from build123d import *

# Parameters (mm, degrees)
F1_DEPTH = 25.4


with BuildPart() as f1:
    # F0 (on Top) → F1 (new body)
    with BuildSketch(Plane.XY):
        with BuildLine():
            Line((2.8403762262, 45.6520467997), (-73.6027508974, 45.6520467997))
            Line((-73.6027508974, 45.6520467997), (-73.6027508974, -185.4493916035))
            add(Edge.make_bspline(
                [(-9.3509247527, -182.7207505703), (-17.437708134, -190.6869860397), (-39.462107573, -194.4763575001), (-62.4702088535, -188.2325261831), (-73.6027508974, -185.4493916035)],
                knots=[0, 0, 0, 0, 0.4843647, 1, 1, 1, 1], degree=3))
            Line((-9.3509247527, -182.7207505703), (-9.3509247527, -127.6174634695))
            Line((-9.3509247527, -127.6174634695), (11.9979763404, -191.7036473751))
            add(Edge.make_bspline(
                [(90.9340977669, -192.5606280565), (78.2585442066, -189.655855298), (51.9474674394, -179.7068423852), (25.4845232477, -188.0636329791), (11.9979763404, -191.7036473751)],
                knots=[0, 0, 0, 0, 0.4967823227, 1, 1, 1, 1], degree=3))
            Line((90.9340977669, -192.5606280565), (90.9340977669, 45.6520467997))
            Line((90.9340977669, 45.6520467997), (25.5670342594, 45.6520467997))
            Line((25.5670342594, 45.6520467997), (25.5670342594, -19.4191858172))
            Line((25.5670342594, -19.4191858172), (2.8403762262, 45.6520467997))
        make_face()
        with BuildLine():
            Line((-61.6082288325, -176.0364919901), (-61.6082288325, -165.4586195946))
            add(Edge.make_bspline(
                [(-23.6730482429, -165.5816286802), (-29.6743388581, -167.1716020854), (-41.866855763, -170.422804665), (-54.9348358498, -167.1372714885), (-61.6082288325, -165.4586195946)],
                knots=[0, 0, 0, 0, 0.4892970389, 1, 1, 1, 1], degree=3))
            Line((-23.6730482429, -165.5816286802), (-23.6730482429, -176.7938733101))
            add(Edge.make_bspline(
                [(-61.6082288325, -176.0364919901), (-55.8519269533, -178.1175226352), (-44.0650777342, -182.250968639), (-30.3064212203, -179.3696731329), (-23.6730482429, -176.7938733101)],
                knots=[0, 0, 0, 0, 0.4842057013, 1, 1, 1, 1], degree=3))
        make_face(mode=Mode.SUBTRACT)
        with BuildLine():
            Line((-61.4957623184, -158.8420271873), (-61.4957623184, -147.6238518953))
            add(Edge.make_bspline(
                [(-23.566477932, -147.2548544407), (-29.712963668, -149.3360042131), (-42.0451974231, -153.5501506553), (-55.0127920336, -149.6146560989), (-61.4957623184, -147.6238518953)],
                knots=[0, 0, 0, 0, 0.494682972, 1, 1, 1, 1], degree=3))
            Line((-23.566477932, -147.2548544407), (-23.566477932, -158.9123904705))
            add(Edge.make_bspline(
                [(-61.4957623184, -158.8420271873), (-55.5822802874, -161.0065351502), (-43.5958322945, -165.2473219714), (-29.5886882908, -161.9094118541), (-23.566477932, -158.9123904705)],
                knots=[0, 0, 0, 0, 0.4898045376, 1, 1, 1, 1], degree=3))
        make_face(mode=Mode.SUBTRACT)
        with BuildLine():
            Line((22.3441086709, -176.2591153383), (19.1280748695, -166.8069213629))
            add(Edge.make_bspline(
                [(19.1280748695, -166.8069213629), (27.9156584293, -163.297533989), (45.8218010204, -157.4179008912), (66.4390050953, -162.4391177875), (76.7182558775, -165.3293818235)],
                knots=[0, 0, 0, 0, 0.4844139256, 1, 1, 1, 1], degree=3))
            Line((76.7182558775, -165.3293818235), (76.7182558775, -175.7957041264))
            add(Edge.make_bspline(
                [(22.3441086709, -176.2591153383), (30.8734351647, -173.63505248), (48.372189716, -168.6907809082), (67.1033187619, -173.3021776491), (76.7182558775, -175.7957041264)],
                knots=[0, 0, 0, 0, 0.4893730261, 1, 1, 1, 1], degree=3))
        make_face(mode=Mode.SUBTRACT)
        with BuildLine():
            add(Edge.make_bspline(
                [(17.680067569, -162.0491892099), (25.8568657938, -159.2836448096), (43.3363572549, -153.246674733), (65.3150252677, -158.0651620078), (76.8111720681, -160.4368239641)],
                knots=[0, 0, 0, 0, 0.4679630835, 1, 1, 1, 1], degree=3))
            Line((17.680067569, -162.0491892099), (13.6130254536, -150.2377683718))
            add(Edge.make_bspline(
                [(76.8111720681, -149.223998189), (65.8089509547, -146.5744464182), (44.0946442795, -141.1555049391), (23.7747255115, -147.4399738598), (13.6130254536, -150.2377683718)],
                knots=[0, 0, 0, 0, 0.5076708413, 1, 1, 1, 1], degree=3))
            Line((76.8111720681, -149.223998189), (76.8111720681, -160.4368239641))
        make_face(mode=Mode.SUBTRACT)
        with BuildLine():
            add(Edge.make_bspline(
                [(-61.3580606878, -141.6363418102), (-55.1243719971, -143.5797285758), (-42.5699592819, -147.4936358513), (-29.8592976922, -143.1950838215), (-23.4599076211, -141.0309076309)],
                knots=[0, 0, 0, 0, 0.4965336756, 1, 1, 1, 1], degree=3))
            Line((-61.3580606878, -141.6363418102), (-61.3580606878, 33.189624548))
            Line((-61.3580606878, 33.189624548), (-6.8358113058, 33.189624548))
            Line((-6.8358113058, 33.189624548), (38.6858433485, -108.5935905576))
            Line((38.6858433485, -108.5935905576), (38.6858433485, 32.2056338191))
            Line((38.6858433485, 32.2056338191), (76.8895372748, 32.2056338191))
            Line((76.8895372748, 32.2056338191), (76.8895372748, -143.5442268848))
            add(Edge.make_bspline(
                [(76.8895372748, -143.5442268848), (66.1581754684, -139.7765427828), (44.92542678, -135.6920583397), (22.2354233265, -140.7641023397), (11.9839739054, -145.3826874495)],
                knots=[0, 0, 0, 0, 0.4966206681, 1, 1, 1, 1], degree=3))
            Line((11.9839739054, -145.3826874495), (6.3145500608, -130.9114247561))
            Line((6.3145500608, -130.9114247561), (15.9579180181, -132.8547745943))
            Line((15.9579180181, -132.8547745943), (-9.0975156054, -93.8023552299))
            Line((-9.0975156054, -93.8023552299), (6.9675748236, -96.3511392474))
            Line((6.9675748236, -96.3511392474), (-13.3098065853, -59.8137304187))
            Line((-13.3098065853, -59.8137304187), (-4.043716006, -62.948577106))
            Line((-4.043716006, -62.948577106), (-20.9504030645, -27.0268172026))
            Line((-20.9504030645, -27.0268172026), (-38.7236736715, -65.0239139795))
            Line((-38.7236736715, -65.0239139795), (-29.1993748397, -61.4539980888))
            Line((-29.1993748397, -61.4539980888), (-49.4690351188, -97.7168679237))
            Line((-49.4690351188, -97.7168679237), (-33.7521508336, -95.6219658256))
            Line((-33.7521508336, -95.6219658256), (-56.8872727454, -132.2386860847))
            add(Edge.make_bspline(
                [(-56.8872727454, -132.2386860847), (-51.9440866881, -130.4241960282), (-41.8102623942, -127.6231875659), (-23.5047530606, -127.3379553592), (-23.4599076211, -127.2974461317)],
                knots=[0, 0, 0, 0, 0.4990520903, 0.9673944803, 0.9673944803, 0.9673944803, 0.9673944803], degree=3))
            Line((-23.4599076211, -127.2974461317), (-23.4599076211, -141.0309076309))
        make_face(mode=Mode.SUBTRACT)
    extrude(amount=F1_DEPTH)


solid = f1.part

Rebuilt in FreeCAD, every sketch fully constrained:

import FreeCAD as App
import Part
import Sketcher
Q = App.Units.Quantity

doc = App.newDocument("Part")
body = doc.addObject("PartDesign::Body", "Body")

# Sketch on XY plane
sketch1 = body.newObject("Sketcher::SketchObject", "Sketch")
sketch1.AttachmentSupport = (doc.getObject("XY_Plane"), [""])
sketch1.MapMode = "FlatFace"
sketch1.addGeometry([
    Part.LineSegment(App.Vector(2.840376, 45.652047, 0), App.Vector(-73.602751, 45.652047, 0)),  # 0
    Part.LineSegment(App.Vector(-73.602751, 45.652047, 0), App.Vector(-73.602751, -185.449392, 0)),  # 1
    Part.BSplineCurve([App.Vector(-9.350925, -182.720751, 0), App.Vector(-17.437708, -190.686986, 0), App.Vector(-39.462108, -194.476358, 0), App.Vector(-62.470209, -188.232526, 0), App.Vector(-73.602751, -185.449392, 0)], [4, 1, 4], [0, 0.4843647, 1], False, 3, [1, 1, 1, 1, 1], False),  # 2
    Part.LineSegment(App.Vector(-9.350925, -182.720751, 0), App.Vector(-9.350925, -127.617463, 0)),  # 3
    Part.LineSegment(App.Vector(-9.350925, -127.617463, 0), App.Vector(11.997976, -191.703647, 0)),  # 4
    Part.BSplineCurve([App.Vector(90.934098, -192.560628, 0), App.Vector(78.258544, -189.655855, 0), App.Vector(51.947467, -179.706842, 0), App.Vector(25.484523, -188.063633, 0), App.Vector(11.997976, -191.703647, 0)], [4, 1, 4], [0, 0.496782323, 1], False, 3, [1, 1, 1, 1, 1], False),  # 5
    Part.LineSegment(App.Vector(90.934098, -192.560628, 0), App.Vector(90.934098, 45.652047, 0)),  # 6
    Part.LineSegment(App.Vector(90.934098, 45.652047, 0), App.Vector(25.567034, 45.652047, 0)),  # 7
    Part.LineSegment(App.Vector(25.567034, 45.652047, 0), App.Vector(25.567034, -19.419186, 0)),  # 8
    Part.LineSegment(App.Vector(25.567034, -19.419186, 0), App.Vector(2.840376, 45.652047, 0)),  # 9
    Part.BSplineCurve([App.Vector(-61.608229, -176.036492, 0), App.Vector(-55.851927, -178.117523, 0), App.Vector(-44.065078, -182.250969, 0), App.Vector(-30.306421, -179.369673, 0), App.Vector(-23.673048, -176.793873, 0)], [4, 1, 4], [0, 0.484205701, 1], False, 3, [1, 1, 1, 1, 1], False),  # 10
    Part.LineSegment(App.Vector(-61.608229, -176.036492, 0), App.Vector(-61.608229, -165.45862, 0)),  # 11
    Part.BSplineCurve([App.Vector(-23.673048, -165.581629, 0), App.Vector(-29.674339, -167.171602, 0), App.Vector(-41.866856, -170.422805, 0), App.Vector(-54.934836, -167.137271, 0), App.Vector(-61.608229, -165.45862, 0)], [4, 1, 4], [0, 0.489297039, 1], False, 3, [1, 1, 1, 1, 1], False),  # 12
    Part.LineSegment(App.Vector(-23.673048, -165.581629, 0), App.Vector(-23.673048, -176.793873, 0)),  # 13
    Part.BSplineCurve([App.Vector(-61.495762, -158.842027, 0), App.Vector(-55.58228, -161.006535, 0), App.Vector(-43.595832, -165.247322, 0), App.Vector(-29.588688, -161.909412, 0), App.Vector(-23.566478, -158.91239, 0)], [4, 1, 4], [0, 0.489804538, 1], False, 3, [1, 1, 1, 1, 1], False),  # 14
    Part.LineSegment(App.Vector(-61.495762, -158.842027, 0), App.Vector(-61.495762, -147.623852, 0)),  # 15
    Part.BSplineCurve([App.Vector(-23.566478, -147.254854, 0), App.Vector(-29.712964, -149.336004, 0), App.Vector(-42.045197, -153.550151, 0), App.Vector(-55.012792, -149.614656, 0), App.Vector(-61.495762, -147.623852, 0)], [4, 1, 4], [0, 0.494682972, 1], False, 3, [1, 1, 1, 1, 1], False),  # 16
    Part.LineSegment(App.Vector(-23.566478, -147.254854, 0), App.Vector(-23.566478, -158.91239, 0)),  # 17
    Part.BSplineCurve([App.Vector(22.344109, -176.259115, 0), App.Vector(30.873435, -173.635052, 0), App.Vector(48.37219, -168.690781, 0), App.Vector(67.103319, -173.302178, 0), App.Vector(76.718256, -175.795704, 0)], [4, 1, 4], [0, 0.489373026, 1], False, 3, [1, 1, 1, 1, 1], False),  # 18
    Part.LineSegment(App.Vector(22.344109, -176.259115, 0), App.Vector(19.128075, -166.806921, 0)),  # 19
    Part.BSplineCurve([App.Vector(19.128075, -166.806921, 0), App.Vector(27.915658, -163.297534, 0), App.Vector(45.821801, -157.417901, 0), App.Vector(66.439005, -162.439118, 0), App.Vector(76.718256, -165.329382, 0)], [4, 1, 4], [0, 0.484413926, 1], False, 3, [1, 1, 1, 1, 1], False),  # 20
    Part.LineSegment(App.Vector(76.718256, -165.329382, 0), App.Vector(76.718256, -175.795704, 0)),  # 21
    Part.BSplineCurve([App.Vector(17.680068, -162.049189, 0), App.Vector(25.856866, -159.283645, 0), App.Vector(43.336357, -153.246675, 0), App.Vector(65.315025, -158.065162, 0), App.Vector(76.811172, -160.436824, 0)], [4, 1, 4], [0, 0.467963083, 1], False, 3, [1, 1, 1, 1, 1], False),  # 22
    Part.LineSegment(App.Vector(17.680068, -162.049189, 0), App.Vector(13.613025, -150.237768, 0)),  # 23
    Part.BSplineCurve([App.Vector(76.811172, -149.223998, 0), App.Vector(65.808951, -146.574446, 0), App.Vector(44.094644, -141.155505, 0), App.Vector(23.774726, -147.439974, 0), App.Vector(13.613025, -150.237768, 0)], [4, 1, 4], [0, 0.507670841, 1], False, 3, [1, 1, 1, 1, 1], False),  # 24
    Part.LineSegment(App.Vector(76.811172, -149.223998, 0), App.Vector(76.811172, -160.436824, 0)),  # 25
    Part.BSplineCurve([App.Vector(-61.358061, -141.636342, 0), App.Vector(-55.124372, -143.579729, 0), App.Vector(-42.569959, -147.493636, 0), App.Vector(-29.859298, -143.195084, 0), App.Vector(-23.459908, -141.030908, 0)], [4, 1, 4], [0, 0.496533676, 1], False, 3, [1, 1, 1, 1, 1], False),  # 26
    Part.LineSegment(App.Vector(-61.358061, -141.636342, 0), App.Vector(-61.358061, 33.189625, 0)),  # 27
    Part.LineSegment(App.Vector(-61.358061, 33.189625, 0), App.Vector(-6.835811, 33.189625, 0)),  # 28
    Part.LineSegment(App.Vector(-6.835811, 33.189625, 0), App.Vector(38.685843, -108.593591, 0)),  # 29
    Part.LineSegment(App.Vector(38.685843, -108.593591, 0), App.Vector(38.685843, 32.205634, 0)),  # 30
    Part.LineSegment(App.Vector(38.685843, 32.205634, 0), App.Vector(76.889537, 32.205634, 0)),  # 31
    Part.LineSegment(App.Vector(76.889537, 32.205634, 0), App.Vector(76.889537, -143.544227, 0)),  # 32
    Part.BSplineCurve([App.Vector(76.889537, -143.544227, 0), App.Vector(66.158175, -139.776543, 0), App.Vector(44.925427, -135.692058, 0), App.Vector(22.235423, -140.764102, 0), App.Vector(11.983974, -145.382687, 0)], [4, 1, 4], [0, 0.496620668, 1], False, 3, [1, 1, 1, 1, 1], False),  # 33
    Part.LineSegment(App.Vector(11.983974, -145.382687, 0), App.Vector(6.31455, -130.911425, 0)),  # 34
    Part.LineSegment(App.Vector(6.31455, -130.911425, 0), App.Vector(15.957918, -132.854775, 0)),  # 35
    Part.LineSegment(App.Vector(15.957918, -132.854775, 0), App.Vector(-9.097516, -93.802355, 0)),  # 36
    Part.LineSegment(App.Vector(-9.097516, -93.802355, 0), App.Vector(6.967575, -96.351139, 0)),  # 37
    Part.LineSegment(App.Vector(6.967575, -96.351139, 0), App.Vector(-13.309807, -59.81373, 0)),  # 38
    Part.LineSegment(App.Vector(-13.309807, -59.81373, 0), App.Vector(-4.043716, -62.948577, 0)),  # 39
    Part.LineSegment(App.Vector(-4.043716, -62.948577, 0), App.Vector(-20.950403, -27.026817, 0)),  # 40
    Part.LineSegment(App.Vector(-20.950403, -27.026817, 0), App.Vector(-38.723674, -65.023914, 0)),  # 41
    Part.LineSegment(App.Vector(-38.723674, -65.023914, 0), App.Vector(-29.199375, -61.453998, 0)),  # 42
    Part.LineSegment(App.Vector(-29.199375, -61.453998, 0), App.Vector(-49.469035, -97.716868, 0)),  # 43
    Part.LineSegment(App.Vector(-49.469035, -97.716868, 0), App.Vector(-33.752151, -95.621966, 0)),  # 44
    Part.LineSegment(App.Vector(-33.752151, -95.621966, 0), App.Vector(-56.887273, -132.238686, 0)),  # 45
    Part.BSplineCurve([App.Vector(-56.887273, -132.238686, 0), App.Vector(-51.944087, -130.424196, 0), App.Vector(-41.810262, -127.623188, 0), App.Vector(-23.504753, -127.337955, 0), App.Vector(-23.459908, -127.297446, 0)], [4, 1, 4], [0, 0.49905209, 0.96739448], False, 3, [1, 1, 1, 1, 1], False),  # 46
    Part.LineSegment(App.Vector(-23.459908, -127.297446, 0), App.Vector(-23.459908, -141.030908, 0)),  # 47
], False)
sketch1.addConstraint([
    Sketcher.Constraint("Block", 2),
    Sketcher.Constraint("Block", 5),
    Sketcher.Constraint("Block", 10),
    Sketcher.Constraint("Block", 12),
    Sketcher.Constraint("Block", 14),
    Sketcher.Constraint("Block", 16),
    Sketcher.Constraint("Block", 18),
    Sketcher.Constraint("Block", 20),
    Sketcher.Constraint("Block", 22),
    Sketcher.Constraint("Block", 24),
    Sketcher.Constraint("Block", 26),
    Sketcher.Constraint("Block", 33),
    Sketcher.Constraint("Block", 46),
    Sketcher.Constraint("Coincident", 0, 2, 1, 1),
    Sketcher.Constraint("Coincident", 1, 2, 2, 2),
    Sketcher.Constraint("Coincident", 2, 1, 3, 1),
    Sketcher.Constraint("Coincident", 3, 2, 4, 1),
    Sketcher.Constraint("Coincident", 4, 2, 5, 2),
    Sketcher.Constraint("Coincident", 5, 1, 6, 1),
    Sketcher.Constraint("Coincident", 6, 2, 7, 1),
    Sketcher.Constraint("Coincident", 7, 2, 8, 1),
    Sketcher.Constraint("Coincident", 8, 2, 9, 1),
    Sketcher.Constraint("Coincident", 9, 2, 0, 1),
    Sketcher.Constraint("Coincident", 10, 1, 11, 1),
    Sketcher.Constraint("Coincident", 11, 2, 12, 2),
    Sketcher.Constraint("Coincident", 12, 1, 13, 1),
    Sketcher.Constraint("Coincident", 13, 2, 10, 2),
    Sketcher.Constraint("Coincident", 14, 1, 15, 1),
    Sketcher.Constraint("Coincident", 15, 2, 16, 2),
    Sketcher.Constraint("Coincident", 16, 1, 17, 1),
    Sketcher.Constraint("Coincident", 17, 2, 14, 2),
    Sketcher.Constraint("Coincident", 18, 1, 19, 1),
    Sketcher.Constraint("Coincident", 19, 2, 20, 1),
    Sketcher.Constraint("Coincident", 20, 2, 21, 1),
    Sketcher.Constraint("Coincident", 21, 2, 18, 2),
    Sketcher.Constraint("Coincident", 22, 1, 23, 1),
    Sketcher.Constraint("Coincident", 23, 2, 24, 2),
    Sketcher.Constraint("Coincident", 24, 1, 25, 1),
    Sketcher.Constraint("Coincident", 25, 2, 22, 2),
    Sketcher.Constraint("Coincident", 26, 1, 27, 1),
    Sketcher.Constraint("Coincident", 27, 2, 28, 1),
    Sketcher.Constraint("Coincident", 28, 2, 29, 1),
    Sketcher.Constraint("Coincident", 29, 2, 30, 1),
    Sketcher.Constraint("Coincident", 30, 2, 31, 1),
    Sketcher.Constraint("Coincident", 31, 2, 32, 1),
    Sketcher.Constraint("Coincident", 32, 2, 33, 1),
    Sketcher.Constraint("Coincident", 33, 2, 34, 1),
    Sketcher.Constraint("Coincident", 34, 2, 35, 1),
    Sketcher.Constraint("Coincident", 35, 2, 36, 1),
    Sketcher.Constraint("Coincident", 36, 2, 37, 1),
    Sketcher.Constraint("Coincident", 37, 2, 38, 1),
    Sketcher.Constraint("Coincident", 38, 2, 39, 1),
    Sketcher.Constraint("Coincident", 39, 2, 40, 1),
    Sketcher.Constraint("Coincident", 40, 2, 41, 1),
    Sketcher.Constraint("Coincident", 41, 2, 42, 1),
    Sketcher.Constraint("Coincident", 42, 2, 43, 1),
    Sketcher.Constraint("Coincident", 43, 2, 44, 1),
    Sketcher.Constraint("Coincident", 44, 2, 45, 1),
    Sketcher.Constraint("Coincident", 45, 2, 46, 1),
    Sketcher.Constraint("Coincident", 46, 2, 47, 1),
    Sketcher.Constraint("Coincident", 47, 2, 26, 2),
    Sketcher.Constraint("Horizontal", 0),
    Sketcher.Constraint("Vertical", 1),
    Sketcher.Constraint("Vertical", 3),
    Sketcher.Constraint("Vertical", 6),
    Sketcher.Constraint("Horizontal", 7),
    Sketcher.Constraint("Vertical", 8),
    Sketcher.Constraint("Vertical", 27),
    Sketcher.Constraint("Horizontal", 28),
    Sketcher.Constraint("Vertical", 30),
    Sketcher.Constraint("Horizontal", 31),
    Sketcher.Constraint("Vertical", 32),
    Sketcher.Constraint("Horizontal", 0, 2, 6, 2),
    Sketcher.Constraint("Angle", 29, Q("-72.199984 deg")),
    Sketcher.Constraint("DistanceX", 43, 2, -1, 1, Q("1.9475998 in")),
    Sketcher.Constraint("DistanceX", 28, 1, 28, 2, 54.522249),
    Sketcher.Constraint("DistanceY", 1, 2, 1, 1, 231.101438),
    Sketcher.Constraint("DistanceY", 32, 2, 32, 1, 175.749861),
    Sketcher.Constraint("DistanceY", 42, 2, -1, 1, 61.453998),
    Sketcher.Constraint("DistanceX", 3, 2, 9, 2, 12.191301),
    Sketcher.Constraint("DistanceX", 3, 2, 37, 2, 16.3185),
    Sketcher.Constraint("DistanceX", 36, 2, 39, 2, 5.0538),
    Sketcher.Constraint("DistanceX", 41, 2, 42, 2, 9.524299),
    Sketcher.Constraint("Distance", 4, 67.548609),
    Sketcher.Constraint("Distance", 36, 46.398989),
    Sketcher.Constraint("Distance", 37, 16.266021),
    Sketcher.Constraint("Distance", 39, 9.782009),
    Sketcher.Constraint("Distance", 42, 10.17136),
    Sketcher.Constraint("Distance", 43, 41.543409),
    Sketcher.Constraint("DistanceX", 7, 2, 7, 1, 65.367064),
    Sketcher.Constraint("DistanceX", 31, 1, 31, 2, 38.203694),
    Sketcher.Constraint("DistanceY", 8, 2, 8, 1, 65.071233),
    Sketcher.Constraint("DistanceY", 27, 1, 27, 2, 174.825966),
    Sketcher.Constraint("DistanceX", -1, 1, 34, 2, 6.31455),
    Sketcher.Constraint("DistanceX", -1, 1, 35, 2, 15.957918),
    Sketcher.Constraint("DistanceY", 37, 2, -1, 1, 96.351139),
    Sketcher.Constraint("DistanceY", 38, 2, -1, 1, 59.81373),
    Sketcher.Constraint("DistanceX", 44, 2, -1, 1, 33.752151),
    Sketcher.Constraint("DistanceY", 34, 2, 3, 2, 3.293961),
    Sketcher.Constraint("DistanceY", 35, 2, 34, 2, 1.94335),
    Sketcher.Constraint("DistanceX", 38, 2, 36, 2, 4.212291),
    Sketcher.Constraint("DistanceY", 39, 2, 40, 2, 35.92176),
    Sketcher.Constraint("DistanceX", 40, 2, 28, 2, 14.114592),
    Sketcher.Constraint("DistanceX", 41, 2, 36, 2, 29.626158),
    Sketcher.Constraint("DistanceY", 44, 2, 36, 2, 1.819611),
])
pad1 = body.newObject("PartDesign::Pad", "Pad")
pad1.Profile = sketch1
pad1.Length = Q("1 in")

doc.recompute()
